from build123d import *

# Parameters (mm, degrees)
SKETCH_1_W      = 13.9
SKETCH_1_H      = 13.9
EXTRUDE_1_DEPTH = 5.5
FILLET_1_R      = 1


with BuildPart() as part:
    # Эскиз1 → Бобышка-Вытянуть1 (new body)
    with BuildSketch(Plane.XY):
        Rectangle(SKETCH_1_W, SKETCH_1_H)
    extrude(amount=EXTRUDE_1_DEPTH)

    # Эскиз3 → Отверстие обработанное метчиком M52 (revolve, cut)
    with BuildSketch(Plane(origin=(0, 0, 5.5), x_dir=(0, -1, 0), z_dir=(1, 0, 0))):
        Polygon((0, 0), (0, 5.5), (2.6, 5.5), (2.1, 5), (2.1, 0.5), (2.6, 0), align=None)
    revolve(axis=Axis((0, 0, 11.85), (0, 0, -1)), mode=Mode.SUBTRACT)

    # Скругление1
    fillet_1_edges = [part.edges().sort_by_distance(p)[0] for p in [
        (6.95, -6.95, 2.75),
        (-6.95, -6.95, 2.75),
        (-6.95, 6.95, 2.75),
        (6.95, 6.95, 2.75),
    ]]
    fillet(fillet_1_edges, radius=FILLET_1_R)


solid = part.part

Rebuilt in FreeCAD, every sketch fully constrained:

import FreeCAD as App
import Part
import Sketcher
from FreeCAD import Vector
Q = App.Units.Quantity


def edges_at(feature, points):
    """Names of the edges that pass closest to the given points."""
    edges = feature.Shape.Edges
    near = lambda p: min(range(len(edges)), key=lambda i: edges[i].distToShape(Part.Vertex(*p))[0])
    return sorted({f"Edge{near(p) + 1}" for p in points})


def add_polygon(sketch, points):
    """Adds a closed chain of lines whose ends are joined by coincident constraints."""
    first, n = sketch.GeometryCount, len(points)
    for a, b in zip(points, points[1:] + points[:1]):
        sketch.addGeometry(Part.LineSegment(App.Vector(*a, 0), App.Vector(*b, 0)), False)
    for i in range(n):
        sketch.addConstraint(Sketcher.Constraint("Coincident", first + i, 2, first + (i + 1) % n, 1))

doc = App.newDocument("Part")
body = doc.addObject("PartDesign::Body", "Body")

# Sketch on XY plane
sketch1 = body.newObject("Sketcher::SketchObject", "Sketch")
sketch1.AttachmentSupport = (doc.getObject("XY_Plane"), [""])
sketch1.MapMode = "FlatFace"
add_polygon(sketch1, [(-6.95, 6.95), (-6.95, -6.95), (6.95, -6.95), (6.95, 6.95)])  # lines 0-3
sketch1.addConstraint([
    Sketcher.Constraint("Vertical", 0),
    Sketcher.Constraint("Horizontal", 1),
    Sketcher.Constraint("Vertical", 2),
    Sketcher.Constraint("Horizontal", 3),
    Sketcher.Constraint("Symmetric", 0, 2, 2, 2, -1, 1),
    Sketcher.Constraint("Equal", 3, 0),
    Sketcher.Constraint("DistanceX", 1, 1, 1, 2, Q("13.9 mm")),
])
pad1 = body.newObject("PartDesign::Pad", "Pad")
pad1.Profile = sketch1
pad1.Length = 5.5

# Sketch on YZ plane
sketch2 = body.newObject("Sketcher::SketchObject", "Sketch001")
sketch2.AttachmentSupport = (doc.getObject("YZ_Plane"), [""])
sketch2.MapMode = "FlatFace"
add_polygon(sketch2, [(0, 0), (0, 5.5), (-2.6, 5.5), (-2.1, 5), (-2.1, 0.5), (-2.6, 0)])  # lines 0-5
sketch2.addConstraint([
    Sketcher.Constraint("Vertical", 0),
    Sketcher.Constraint("Horizontal", 1),
    Sketcher.Constraint("Vertical", 3),
    Sketcher.Constraint("Horizontal", 5),
    Sketcher.Constraint("Coincident", 5, 2, -1, 1),
    Sketcher.Constraint("Perpendicular", 2, 4),
    Sketcher.Constraint("Vertical", 1, 2, 4, 2),
    Sketcher.Constraint("Equal", 2, 4),
    Sketcher.Constraint("DistanceX", 1, 2, 1, 1, Q("2.6 mm")),
    Sketcher.Constraint("DistanceY", 0, 1, 0, 2, Q("5.5 mm")),
    Sketcher.Constraint("DistanceY", 3, 2, 3, 1, Q("4.5 mm")),
])
groove = body.newObject("PartDesign::Groove", "Groove")
groove.Profile = sketch2
groove.ReferenceAxis = (sketch2, ["V_Axis"])
groove.Angle = 360
doc.recompute()

fillet = body.newObject("PartDesign::Fillet", "Fillet")
fillet.Base = (groove, edges_at(groove, [
    (6.95, -6.95, 2.75),
    (-6.95, -6.95, 2.75),
    (-6.95, 6.95, 2.75),
    (6.95, 6.95, 2.75),
]))
fillet.Radius = 1

doc.recompute()
